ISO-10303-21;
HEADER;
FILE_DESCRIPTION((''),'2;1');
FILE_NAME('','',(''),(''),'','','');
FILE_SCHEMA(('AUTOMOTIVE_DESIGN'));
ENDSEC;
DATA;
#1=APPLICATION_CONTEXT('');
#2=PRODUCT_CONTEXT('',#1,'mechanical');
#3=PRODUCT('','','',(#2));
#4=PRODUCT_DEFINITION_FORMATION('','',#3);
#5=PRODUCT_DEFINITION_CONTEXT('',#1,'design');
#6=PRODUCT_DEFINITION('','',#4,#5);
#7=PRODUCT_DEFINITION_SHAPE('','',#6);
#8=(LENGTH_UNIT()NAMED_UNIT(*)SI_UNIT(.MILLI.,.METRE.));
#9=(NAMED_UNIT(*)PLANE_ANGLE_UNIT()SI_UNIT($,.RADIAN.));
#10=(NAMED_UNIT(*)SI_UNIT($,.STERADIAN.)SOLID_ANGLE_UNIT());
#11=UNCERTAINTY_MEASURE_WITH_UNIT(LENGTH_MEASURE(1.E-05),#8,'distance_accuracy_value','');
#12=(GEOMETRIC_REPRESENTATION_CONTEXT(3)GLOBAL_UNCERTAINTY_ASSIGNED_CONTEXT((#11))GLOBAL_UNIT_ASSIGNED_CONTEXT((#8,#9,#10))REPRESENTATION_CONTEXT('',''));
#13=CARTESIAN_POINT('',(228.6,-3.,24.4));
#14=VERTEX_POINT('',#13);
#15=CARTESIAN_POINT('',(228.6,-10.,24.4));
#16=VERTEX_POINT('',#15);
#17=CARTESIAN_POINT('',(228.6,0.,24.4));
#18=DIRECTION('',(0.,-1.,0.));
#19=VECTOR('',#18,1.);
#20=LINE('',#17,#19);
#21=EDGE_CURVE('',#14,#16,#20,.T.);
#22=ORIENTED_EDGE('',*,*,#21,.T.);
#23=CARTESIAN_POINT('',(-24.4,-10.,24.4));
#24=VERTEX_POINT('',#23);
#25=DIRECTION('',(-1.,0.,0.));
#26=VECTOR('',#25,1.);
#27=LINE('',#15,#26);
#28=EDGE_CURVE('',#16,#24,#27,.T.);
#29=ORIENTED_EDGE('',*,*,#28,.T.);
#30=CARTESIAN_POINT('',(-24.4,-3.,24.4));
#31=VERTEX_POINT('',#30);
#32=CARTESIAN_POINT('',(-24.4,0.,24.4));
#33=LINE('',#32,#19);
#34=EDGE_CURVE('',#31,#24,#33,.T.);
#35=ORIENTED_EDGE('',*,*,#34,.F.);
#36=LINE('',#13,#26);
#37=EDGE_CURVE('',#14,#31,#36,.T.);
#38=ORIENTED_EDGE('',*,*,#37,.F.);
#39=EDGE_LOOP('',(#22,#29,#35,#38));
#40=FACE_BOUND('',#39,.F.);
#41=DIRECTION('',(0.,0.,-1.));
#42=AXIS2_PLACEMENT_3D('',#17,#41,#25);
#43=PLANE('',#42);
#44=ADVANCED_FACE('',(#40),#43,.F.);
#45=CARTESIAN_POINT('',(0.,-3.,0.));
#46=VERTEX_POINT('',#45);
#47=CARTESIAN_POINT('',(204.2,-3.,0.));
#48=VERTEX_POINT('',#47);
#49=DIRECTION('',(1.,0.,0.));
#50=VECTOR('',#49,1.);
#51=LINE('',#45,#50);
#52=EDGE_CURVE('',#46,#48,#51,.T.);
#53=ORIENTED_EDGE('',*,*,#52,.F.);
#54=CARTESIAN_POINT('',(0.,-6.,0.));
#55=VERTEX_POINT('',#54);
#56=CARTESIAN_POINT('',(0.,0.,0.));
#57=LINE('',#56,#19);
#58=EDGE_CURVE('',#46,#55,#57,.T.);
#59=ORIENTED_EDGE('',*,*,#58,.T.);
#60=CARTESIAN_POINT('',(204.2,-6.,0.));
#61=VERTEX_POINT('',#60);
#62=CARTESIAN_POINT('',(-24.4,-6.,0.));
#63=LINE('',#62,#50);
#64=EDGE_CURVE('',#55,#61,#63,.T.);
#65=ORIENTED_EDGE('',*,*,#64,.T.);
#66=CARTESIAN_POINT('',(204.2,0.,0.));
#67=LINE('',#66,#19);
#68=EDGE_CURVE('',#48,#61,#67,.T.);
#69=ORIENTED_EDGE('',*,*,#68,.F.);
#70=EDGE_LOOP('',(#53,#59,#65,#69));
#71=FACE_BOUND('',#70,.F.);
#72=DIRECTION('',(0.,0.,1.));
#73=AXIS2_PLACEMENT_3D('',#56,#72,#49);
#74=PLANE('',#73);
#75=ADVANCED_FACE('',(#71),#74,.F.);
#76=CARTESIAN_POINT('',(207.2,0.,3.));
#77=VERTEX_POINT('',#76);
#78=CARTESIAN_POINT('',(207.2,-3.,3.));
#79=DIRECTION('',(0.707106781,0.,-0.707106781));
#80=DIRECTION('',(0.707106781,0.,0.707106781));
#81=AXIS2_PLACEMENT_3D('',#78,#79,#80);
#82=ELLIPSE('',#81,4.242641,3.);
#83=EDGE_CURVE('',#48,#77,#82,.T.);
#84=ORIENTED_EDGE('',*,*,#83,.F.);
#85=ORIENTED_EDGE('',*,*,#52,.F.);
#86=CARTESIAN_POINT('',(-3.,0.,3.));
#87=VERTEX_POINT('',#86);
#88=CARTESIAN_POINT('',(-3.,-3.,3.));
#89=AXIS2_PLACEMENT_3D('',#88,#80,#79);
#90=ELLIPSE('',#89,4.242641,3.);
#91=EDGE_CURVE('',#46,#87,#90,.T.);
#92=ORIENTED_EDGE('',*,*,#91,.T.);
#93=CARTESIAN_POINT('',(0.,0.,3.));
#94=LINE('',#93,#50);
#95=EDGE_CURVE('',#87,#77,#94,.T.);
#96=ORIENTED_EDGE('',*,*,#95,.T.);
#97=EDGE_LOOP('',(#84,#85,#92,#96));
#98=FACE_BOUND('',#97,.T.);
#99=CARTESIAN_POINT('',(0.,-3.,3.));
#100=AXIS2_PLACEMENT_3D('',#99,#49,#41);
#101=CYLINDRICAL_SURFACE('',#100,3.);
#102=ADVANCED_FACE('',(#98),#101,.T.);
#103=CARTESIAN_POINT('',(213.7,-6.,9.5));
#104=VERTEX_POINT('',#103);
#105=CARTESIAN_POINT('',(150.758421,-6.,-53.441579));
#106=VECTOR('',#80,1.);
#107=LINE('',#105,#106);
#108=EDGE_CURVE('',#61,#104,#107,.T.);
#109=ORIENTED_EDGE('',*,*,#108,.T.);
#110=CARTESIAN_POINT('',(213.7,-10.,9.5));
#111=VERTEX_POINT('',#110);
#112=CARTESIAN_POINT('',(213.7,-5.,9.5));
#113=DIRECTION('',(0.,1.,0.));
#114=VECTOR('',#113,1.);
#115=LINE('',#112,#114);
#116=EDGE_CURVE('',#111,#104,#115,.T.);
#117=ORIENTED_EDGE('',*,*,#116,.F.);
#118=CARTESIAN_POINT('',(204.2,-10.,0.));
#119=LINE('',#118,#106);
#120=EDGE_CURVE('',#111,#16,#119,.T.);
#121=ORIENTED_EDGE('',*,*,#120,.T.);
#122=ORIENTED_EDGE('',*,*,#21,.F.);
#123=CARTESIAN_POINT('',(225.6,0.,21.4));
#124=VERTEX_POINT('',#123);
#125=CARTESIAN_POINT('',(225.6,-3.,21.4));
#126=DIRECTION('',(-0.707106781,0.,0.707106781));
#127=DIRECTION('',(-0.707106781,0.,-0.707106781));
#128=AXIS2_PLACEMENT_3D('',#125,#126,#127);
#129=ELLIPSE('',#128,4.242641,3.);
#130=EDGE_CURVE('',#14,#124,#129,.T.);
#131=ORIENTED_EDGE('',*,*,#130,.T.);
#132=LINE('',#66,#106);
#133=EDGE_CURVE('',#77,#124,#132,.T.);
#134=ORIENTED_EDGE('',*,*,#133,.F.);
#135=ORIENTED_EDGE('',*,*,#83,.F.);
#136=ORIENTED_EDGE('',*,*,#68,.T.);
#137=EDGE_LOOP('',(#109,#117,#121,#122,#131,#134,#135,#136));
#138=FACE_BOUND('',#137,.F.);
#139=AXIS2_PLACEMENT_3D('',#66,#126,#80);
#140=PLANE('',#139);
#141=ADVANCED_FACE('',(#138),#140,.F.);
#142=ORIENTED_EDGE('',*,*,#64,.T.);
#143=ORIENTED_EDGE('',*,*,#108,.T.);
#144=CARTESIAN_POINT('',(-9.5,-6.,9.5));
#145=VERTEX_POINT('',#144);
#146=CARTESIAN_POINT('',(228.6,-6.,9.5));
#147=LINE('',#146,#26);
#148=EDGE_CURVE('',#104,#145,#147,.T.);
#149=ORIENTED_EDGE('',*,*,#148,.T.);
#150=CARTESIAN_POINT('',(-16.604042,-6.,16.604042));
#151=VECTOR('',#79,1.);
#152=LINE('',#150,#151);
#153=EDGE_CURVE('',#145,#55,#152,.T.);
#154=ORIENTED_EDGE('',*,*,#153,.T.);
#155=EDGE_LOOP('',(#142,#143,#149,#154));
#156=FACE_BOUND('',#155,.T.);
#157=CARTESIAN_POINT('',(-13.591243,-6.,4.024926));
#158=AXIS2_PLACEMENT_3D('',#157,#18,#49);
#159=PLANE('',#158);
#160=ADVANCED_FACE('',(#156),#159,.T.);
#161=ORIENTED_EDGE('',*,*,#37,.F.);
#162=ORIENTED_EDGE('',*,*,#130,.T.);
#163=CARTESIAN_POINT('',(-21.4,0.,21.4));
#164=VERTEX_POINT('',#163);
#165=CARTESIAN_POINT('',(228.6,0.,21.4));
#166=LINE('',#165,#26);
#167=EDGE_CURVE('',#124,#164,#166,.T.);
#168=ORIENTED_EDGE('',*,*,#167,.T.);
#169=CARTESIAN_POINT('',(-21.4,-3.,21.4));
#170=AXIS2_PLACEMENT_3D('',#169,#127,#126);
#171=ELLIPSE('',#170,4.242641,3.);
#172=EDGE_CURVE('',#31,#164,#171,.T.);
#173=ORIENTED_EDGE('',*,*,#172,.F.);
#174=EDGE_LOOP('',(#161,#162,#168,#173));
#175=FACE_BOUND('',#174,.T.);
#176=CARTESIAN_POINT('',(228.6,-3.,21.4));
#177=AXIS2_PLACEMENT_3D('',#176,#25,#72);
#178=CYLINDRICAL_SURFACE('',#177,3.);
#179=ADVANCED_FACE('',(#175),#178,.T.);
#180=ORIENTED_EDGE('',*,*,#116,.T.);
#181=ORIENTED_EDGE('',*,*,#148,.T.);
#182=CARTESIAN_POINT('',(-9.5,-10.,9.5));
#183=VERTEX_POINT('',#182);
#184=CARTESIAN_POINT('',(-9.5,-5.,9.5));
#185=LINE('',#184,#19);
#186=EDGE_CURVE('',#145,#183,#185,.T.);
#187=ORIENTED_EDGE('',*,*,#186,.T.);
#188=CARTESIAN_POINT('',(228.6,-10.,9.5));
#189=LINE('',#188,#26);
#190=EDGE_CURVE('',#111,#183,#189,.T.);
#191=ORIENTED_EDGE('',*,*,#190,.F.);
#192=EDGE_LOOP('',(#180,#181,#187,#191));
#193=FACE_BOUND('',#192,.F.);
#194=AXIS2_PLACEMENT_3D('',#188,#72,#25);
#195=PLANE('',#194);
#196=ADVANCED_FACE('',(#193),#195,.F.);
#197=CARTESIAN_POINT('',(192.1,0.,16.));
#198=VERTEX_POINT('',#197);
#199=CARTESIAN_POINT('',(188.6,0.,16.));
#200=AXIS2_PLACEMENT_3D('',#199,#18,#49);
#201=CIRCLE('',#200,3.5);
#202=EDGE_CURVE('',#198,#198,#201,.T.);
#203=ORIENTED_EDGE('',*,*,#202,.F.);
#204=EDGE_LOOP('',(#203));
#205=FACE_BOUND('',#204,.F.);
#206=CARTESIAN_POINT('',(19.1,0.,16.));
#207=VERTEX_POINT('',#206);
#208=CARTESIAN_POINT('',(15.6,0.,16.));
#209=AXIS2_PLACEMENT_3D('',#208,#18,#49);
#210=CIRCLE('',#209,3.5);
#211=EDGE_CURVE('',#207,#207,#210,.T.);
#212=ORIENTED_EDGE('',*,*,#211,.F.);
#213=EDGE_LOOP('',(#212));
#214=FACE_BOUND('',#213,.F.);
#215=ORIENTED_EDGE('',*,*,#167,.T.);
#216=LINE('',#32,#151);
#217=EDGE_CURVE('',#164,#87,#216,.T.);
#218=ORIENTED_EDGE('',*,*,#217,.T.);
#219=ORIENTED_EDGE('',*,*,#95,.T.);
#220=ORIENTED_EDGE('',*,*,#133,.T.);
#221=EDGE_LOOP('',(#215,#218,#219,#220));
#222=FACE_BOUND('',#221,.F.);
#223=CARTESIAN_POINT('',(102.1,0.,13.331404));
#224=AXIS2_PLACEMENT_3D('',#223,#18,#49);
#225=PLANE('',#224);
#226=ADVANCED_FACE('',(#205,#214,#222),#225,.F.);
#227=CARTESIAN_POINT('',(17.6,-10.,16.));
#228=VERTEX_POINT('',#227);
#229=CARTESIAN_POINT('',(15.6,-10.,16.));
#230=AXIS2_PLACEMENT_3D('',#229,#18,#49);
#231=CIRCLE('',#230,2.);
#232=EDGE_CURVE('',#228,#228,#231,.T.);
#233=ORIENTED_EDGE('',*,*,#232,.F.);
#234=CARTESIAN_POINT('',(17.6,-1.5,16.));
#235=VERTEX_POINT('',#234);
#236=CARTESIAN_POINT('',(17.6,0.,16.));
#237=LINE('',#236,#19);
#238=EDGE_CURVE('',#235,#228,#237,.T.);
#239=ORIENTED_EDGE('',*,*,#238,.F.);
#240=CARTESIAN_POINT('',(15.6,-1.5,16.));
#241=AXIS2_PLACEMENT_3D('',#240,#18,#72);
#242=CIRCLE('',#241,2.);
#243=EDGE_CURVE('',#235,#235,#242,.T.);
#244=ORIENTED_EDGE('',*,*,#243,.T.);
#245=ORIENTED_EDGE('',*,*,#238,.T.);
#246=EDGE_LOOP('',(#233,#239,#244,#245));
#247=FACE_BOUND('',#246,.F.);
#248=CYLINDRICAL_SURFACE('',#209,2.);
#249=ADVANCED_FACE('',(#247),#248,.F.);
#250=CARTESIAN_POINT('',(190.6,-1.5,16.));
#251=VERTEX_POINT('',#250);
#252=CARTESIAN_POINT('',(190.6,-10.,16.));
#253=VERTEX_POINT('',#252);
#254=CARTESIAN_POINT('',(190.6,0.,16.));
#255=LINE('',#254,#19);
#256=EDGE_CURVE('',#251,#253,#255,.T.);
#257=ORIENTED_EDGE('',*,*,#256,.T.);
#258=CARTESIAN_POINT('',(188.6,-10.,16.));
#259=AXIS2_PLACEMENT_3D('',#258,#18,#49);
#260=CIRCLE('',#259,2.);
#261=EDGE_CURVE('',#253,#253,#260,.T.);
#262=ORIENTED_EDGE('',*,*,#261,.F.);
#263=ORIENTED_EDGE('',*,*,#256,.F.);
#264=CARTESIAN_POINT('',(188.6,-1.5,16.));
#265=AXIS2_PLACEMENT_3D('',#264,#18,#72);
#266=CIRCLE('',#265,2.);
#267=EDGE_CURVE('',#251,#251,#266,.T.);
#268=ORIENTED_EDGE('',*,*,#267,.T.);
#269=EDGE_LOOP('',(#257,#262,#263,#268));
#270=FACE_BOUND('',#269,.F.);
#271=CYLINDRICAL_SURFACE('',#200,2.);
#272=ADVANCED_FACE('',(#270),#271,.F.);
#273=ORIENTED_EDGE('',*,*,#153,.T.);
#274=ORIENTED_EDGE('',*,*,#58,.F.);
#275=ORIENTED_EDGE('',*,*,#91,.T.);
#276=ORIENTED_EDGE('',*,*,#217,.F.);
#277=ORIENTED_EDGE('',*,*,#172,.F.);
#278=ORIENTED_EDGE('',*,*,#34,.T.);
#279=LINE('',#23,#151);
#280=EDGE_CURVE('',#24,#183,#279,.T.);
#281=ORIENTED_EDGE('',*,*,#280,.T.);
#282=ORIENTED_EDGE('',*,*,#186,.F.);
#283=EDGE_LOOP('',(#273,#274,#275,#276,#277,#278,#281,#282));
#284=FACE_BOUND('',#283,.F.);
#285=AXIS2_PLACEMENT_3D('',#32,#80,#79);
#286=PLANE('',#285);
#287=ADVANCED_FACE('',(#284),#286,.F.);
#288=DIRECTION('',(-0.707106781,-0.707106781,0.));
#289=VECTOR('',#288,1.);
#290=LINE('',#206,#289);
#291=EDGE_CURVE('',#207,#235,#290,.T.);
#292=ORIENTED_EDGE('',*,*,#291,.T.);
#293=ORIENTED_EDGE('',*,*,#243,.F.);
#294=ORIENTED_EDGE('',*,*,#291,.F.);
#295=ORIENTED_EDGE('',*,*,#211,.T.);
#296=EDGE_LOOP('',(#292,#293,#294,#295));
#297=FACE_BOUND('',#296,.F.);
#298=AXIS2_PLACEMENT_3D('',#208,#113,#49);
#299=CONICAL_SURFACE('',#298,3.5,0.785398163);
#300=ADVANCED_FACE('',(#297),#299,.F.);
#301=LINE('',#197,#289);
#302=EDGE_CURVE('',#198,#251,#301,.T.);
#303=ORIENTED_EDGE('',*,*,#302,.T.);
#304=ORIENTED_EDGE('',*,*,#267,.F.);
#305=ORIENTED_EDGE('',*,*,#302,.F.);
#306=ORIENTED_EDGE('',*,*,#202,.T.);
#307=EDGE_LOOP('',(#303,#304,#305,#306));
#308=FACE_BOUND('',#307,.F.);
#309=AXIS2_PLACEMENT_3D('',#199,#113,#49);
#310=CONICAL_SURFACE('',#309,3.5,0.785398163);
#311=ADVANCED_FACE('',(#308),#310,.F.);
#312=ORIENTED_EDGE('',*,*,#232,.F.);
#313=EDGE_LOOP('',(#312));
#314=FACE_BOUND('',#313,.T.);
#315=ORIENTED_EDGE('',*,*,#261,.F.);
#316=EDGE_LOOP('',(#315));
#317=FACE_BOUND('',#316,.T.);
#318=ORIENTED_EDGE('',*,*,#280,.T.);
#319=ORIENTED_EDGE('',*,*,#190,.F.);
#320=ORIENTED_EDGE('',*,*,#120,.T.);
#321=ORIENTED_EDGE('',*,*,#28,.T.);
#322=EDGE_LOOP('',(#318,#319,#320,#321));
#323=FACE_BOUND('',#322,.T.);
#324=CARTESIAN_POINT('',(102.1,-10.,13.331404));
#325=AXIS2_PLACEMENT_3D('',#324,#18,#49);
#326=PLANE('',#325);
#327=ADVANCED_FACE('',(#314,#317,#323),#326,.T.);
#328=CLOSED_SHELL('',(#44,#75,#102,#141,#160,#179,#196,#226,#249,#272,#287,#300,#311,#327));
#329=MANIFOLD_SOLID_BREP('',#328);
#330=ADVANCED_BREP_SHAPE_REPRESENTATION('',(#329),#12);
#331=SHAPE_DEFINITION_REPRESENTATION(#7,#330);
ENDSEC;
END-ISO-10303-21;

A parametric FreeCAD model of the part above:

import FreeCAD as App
import Part
import Sketcher

V = App.Vector
Q = App.Units.Quantity


def edges_at(feature, points):
    """Names of the edges that pass closest to the given points."""
    edges = feature.Shape.Edges
    near = lambda p: min(range(len(edges)), key=lambda i: edges[i].distToShape(Part.Vertex(*p))[0])
    return sorted({f"Edge{near(p) + 1}" for p in points})


def add_polygon(sketch, points):
    """Adds a closed chain of lines whose ends are joined by coincident constraints."""
    first, n = sketch.GeometryCount, len(points)
    for a, b in zip(points, points[1:] + points[:1]):
        sketch.addGeometry(Part.LineSegment(App.Vector(*a, 0), App.Vector(*b, 0)), False)
    for i in range(n):
        sketch.addConstraint(Sketcher.Constraint("Coincident", first + i, 2, first + (i + 1) % n, 1))

doc = App.newDocument("Part")
body = doc.addObject("PartDesign::Body", "Body")

# Sketch on XZ plane
sketch1 = body.newObject("Sketcher::SketchObject", "Sketch")
sketch1.AttachmentSupport = (doc.getObject("XZ_Plane"), [""])
sketch1.MapMode = "FlatFace"
add_polygon(sketch1, [(229, 24), (-24, 24), (0, 0), (204, 0)])  # lines 0-3
sketch1.addConstraint(Sketcher.Constraint("Horizontal", 0))
sketch1.addConstraint(Sketcher.Constraint("Horizontal", 2))
sketch1.addConstraint(Sketcher.Constraint("Coincident", 1, 2, -1, 1))
sketch1.addConstraint(Sketcher.Constraint("Perpendicular", 1, 3))
sketch1.addConstraint(Sketcher.Constraint("Equal", 1, 3))
sketch1.addConstraint(Sketcher.Constraint("DistanceX", 0, 2, 0, 1, Q("253 mm")))
sketch1.addConstraint(Sketcher.Constraint("DistanceX", 2, 1, 2, 2, Q("204.2 mm")))
pad1 = body.newObject("PartDesign::Pad", "Pad")
pad1.Profile = sketch1
pad1.Length = 10

# Sketch on XZ plane
sketch2 = body.newObject("Sketcher::SketchObject", "Sketch001")
sketch2.AttachmentSupport = (doc.getObject("XZ_Plane"), [""])
sketch2.MapMode = "FlatFace"
sketch2.AttachmentOffset = App.Placement(V(0, 0, 10), App.Rotation())
add_polygon(sketch2, [(-24, 10), (-24, 0), (229, 0), (229, 10)])  # lines 0-3
sketch2.addConstraint(Sketcher.Constraint("Vertical", 0))
sketch2.addConstraint(Sketcher.Constraint("Horizontal", 1))
sketch2.addConstraint(Sketcher.Constraint("Vertical", 2))
sketch2.addConstraint(Sketcher.Constraint("Horizontal", 3))
sketch2.addConstraint(Sketcher.Constraint("PointOnObject", 0, 2, -1))
sketch2.addConstraint(Sketcher.Constraint("DistanceX", 1, 1, 1, 2, Q("253 mm")))
sketch2.addConstraint(Sketcher.Constraint("DistanceY", 0, 2, 0, 1, Q("9.5 mm")))
sketch2.addConstraint(Sketcher.Constraint("DistanceX", 0, 2, -1, 1, Q("24.4 mm")))
pocket1 = body.newObject("PartDesign::Pocket", "Pocket")
pocket1.Profile = sketch2
pocket1.Length = 4

# Sketch on XZ plane
sketch3 = body.newObject("Sketcher::SketchObject", "Sketch002")
sketch3.AttachmentSupport = (doc.getObject("XZ_Plane"), [""])
sketch3.MapMode = "FlatFace"
sketch3.addGeometry(Part.Circle(V(188.6, 16, 0), V(0, 0, 1), 2), False)
sketch3.addGeometry(Part.Circle(V(15.6, 16, 0), V(0, 0, 1), 2), False)
sketch3.addConstraint(Sketcher.Constraint("Equal", 0, 1))
sketch3.addConstraint(Sketcher.Constraint("Horizontal", 0, 3, 1, 3))
sketch3.addConstraint(Sketcher.Constraint("Diameter", 0, Q("4 mm")))
sketch3.addConstraint(Sketcher.Constraint("DistanceY", -1, 1, 0, 3, Q("16 mm")))
sketch3.addConstraint(Sketcher.Constraint("DistanceX", 1, 3, 0, 3, Q("173 mm")))
sketch3.addConstraint(Sketcher.Constraint("DistanceX", -1, 1, 0, 3, Q("188.6 mm")))
doc.recompute()
hole = body.newObject("PartDesign::Hole", "Hole")
hole.Profile = sketch3
hole.ThreadType = "None"
hole.Diameter = 4
hole.DepthType = "ThroughAll"
hole.HoleCutType = "Countersink"
hole.HoleCutDiameter = 7
hole.HoleCutCountersinkAngle = 90
hole.Reversed = True
doc.recompute()

fillet = body.newObject("PartDesign::Fillet", "Fillet")
fillet.Base = (hole, edges_at(hole, [(102.1, 0, 0), (102.1, 0, 24.4)]))
fillet.Radius = 3

doc.recompute()
